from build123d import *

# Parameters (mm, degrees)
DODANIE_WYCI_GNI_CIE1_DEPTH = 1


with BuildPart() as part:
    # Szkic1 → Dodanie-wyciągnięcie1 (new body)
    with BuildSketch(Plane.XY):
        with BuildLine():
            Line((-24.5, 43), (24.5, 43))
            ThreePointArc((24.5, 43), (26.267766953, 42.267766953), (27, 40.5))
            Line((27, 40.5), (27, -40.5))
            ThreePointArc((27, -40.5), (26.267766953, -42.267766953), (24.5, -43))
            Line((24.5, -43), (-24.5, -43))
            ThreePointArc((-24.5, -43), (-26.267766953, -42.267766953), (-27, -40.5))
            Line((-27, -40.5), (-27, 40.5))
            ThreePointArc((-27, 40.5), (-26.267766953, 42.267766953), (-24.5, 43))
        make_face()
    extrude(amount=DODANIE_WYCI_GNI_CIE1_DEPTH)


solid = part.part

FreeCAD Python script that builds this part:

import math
import FreeCAD as App
import Part
import Sketcher
Q = App.Units.Quantity

doc = App.newDocument("Part")
body = doc.addObject("PartDesign::Body", "Body")

# Sketch on XY plane
sketch1 = doc.addObject("Sketcher::SketchObject", "Sketch")
body.addObject(sketch1)
sketch1.AttachmentSupport = (doc.XY_Plane, [""])
sketch1.MapMode = "FlatFace"
sketch1.addGeometry([
    Part.LineSegment(App.Vector(24.5, 43, 0), App.Vector(-24.5, 43, 0)),  # 0
    Part.ArcOfCircle(Part.Circle(App.Vector(-24.5, 40.5, 0), App.Vector(0, 0, 1), 2.5), math.radians(90), math.radians(180)),  # 1
    Part.LineSegment(App.Vector(-27, 40.5, 0), App.Vector(-27, -40.5, 0)),  # 2
    Part.ArcOfCircle(Part.Circle(App.Vector(-24.5, -40.5, 0), App.Vector(0, 0, 1), 2.5), math.radians(180), math.radians(270)),  # 3
    Part.LineSegment(App.Vector(-24.5, -43, 0), App.Vector(24.5, -43, 0)),  # 4
    Part.ArcOfCircle(Part.Circle(App.Vector(24.5, -40.5, 0), App.Vector(0, 0, 1), 2.5), math.radians(-90), math.radians(0)),  # 5
    Part.LineSegment(App.Vector(27, -40.5, 0), App.Vector(27, 40.5, 0)),  # 6
    Part.ArcOfCircle(Part.Circle(App.Vector(24.5, 40.5, 0), App.Vector(0, 0, 1), 2.5), math.radians(0), math.radians(90)),  # 7
], False)
sketch1.addConstraint([
    Sketcher.Constraint("Tangent", 0, 2, 1, 1),
    Sketcher.Constraint("Tangent", 1, 2, 2, 1),
    Sketcher.Constraint("Tangent", 2, 2, 3, 1),
    Sketcher.Constraint("Tangent", 3, 2, 4, 1),
    Sketcher.Constraint("Tangent", 4, 2, 5, 1),
    Sketcher.Constraint("Tangent", 5, 2, 6, 1),
    Sketcher.Constraint("Tangent", 6, 2, 7, 1),
    Sketcher.Constraint("Tangent", 7, 2, 0, 1),
    Sketcher.Constraint("Horizontal", 0),
    Sketcher.Constraint("Vertical", 2),
    Sketcher.Constraint("Horizontal", 4),
    Sketcher.Constraint("Vertical", 6),
    Sketcher.Constraint("Equal", 1, 3),
    Sketcher.Constraint("Equal", 3, 5),
    Sketcher.Constraint("Equal", 5, 7),
    Sketcher.Constraint("Symmetric", 1, 3, 5, 3, -1, 1),
    Sketcher.Constraint("Radius", 1, Q("2.5 mm")),
    Sketcher.Constraint("DistanceX", 0, 2, 0, 1, Q("49 mm")),
    Sketcher.Constraint("DistanceY", 2, 2, 2, 1, Q("81 mm")),
])
pad1 = doc.addObject("PartDesign::Pad", "Pad")
body.addObject(pad1)
pad1.Profile = sketch1
pad1.Length = 1

doc.recompute()
